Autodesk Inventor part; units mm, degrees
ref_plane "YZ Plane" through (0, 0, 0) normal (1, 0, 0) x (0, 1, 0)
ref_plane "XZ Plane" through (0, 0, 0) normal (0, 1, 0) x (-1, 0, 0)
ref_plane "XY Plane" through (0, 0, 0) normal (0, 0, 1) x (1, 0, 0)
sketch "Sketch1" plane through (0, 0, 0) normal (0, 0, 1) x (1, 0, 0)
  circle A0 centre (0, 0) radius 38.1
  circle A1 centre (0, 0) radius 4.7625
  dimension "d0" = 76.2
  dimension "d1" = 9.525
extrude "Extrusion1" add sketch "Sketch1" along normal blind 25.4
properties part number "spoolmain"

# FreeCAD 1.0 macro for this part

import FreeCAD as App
import Part
import Sketcher
Q = App.Units.Quantity

doc = App.newDocument("Part")
body = doc.addObject("PartDesign::Body", "Body")

sketch1 = body.newObject("Sketcher::SketchObject", "Sketch")
sketch1.AttachmentSupport = (doc.getObject("XY_Plane"), [""])
sketch1.MapMode = "FlatFace"
sketch1.addGeometry(Part.Circle(App.Vector(0, 0, 0), App.Vector(0, 0, 1), 38.1), False)
sketch1.addGeometry(Part.Circle(App.Vector(0, 0, 0), App.Vector(0, 0, 1), 4.8), False)
sketch1.addConstraint(Sketcher.Constraint("Coincident", 0, 3, -1, 1))
sketch1.addConstraint(Sketcher.Constraint("Coincident", 1, 3, -1, 1))
sketch1.addConstraint(Sketcher.Constraint("Diameter", 0, Q("3 in")))
sketch1.addConstraint(Sketcher.Constraint("Diameter", 1, Q("0.375 in")))
pad1 = body.newObject("PartDesign::Pad", "Pad")
pad1.Profile = sketch1
pad1.Length = Q("1 in")

doc.recompute()
